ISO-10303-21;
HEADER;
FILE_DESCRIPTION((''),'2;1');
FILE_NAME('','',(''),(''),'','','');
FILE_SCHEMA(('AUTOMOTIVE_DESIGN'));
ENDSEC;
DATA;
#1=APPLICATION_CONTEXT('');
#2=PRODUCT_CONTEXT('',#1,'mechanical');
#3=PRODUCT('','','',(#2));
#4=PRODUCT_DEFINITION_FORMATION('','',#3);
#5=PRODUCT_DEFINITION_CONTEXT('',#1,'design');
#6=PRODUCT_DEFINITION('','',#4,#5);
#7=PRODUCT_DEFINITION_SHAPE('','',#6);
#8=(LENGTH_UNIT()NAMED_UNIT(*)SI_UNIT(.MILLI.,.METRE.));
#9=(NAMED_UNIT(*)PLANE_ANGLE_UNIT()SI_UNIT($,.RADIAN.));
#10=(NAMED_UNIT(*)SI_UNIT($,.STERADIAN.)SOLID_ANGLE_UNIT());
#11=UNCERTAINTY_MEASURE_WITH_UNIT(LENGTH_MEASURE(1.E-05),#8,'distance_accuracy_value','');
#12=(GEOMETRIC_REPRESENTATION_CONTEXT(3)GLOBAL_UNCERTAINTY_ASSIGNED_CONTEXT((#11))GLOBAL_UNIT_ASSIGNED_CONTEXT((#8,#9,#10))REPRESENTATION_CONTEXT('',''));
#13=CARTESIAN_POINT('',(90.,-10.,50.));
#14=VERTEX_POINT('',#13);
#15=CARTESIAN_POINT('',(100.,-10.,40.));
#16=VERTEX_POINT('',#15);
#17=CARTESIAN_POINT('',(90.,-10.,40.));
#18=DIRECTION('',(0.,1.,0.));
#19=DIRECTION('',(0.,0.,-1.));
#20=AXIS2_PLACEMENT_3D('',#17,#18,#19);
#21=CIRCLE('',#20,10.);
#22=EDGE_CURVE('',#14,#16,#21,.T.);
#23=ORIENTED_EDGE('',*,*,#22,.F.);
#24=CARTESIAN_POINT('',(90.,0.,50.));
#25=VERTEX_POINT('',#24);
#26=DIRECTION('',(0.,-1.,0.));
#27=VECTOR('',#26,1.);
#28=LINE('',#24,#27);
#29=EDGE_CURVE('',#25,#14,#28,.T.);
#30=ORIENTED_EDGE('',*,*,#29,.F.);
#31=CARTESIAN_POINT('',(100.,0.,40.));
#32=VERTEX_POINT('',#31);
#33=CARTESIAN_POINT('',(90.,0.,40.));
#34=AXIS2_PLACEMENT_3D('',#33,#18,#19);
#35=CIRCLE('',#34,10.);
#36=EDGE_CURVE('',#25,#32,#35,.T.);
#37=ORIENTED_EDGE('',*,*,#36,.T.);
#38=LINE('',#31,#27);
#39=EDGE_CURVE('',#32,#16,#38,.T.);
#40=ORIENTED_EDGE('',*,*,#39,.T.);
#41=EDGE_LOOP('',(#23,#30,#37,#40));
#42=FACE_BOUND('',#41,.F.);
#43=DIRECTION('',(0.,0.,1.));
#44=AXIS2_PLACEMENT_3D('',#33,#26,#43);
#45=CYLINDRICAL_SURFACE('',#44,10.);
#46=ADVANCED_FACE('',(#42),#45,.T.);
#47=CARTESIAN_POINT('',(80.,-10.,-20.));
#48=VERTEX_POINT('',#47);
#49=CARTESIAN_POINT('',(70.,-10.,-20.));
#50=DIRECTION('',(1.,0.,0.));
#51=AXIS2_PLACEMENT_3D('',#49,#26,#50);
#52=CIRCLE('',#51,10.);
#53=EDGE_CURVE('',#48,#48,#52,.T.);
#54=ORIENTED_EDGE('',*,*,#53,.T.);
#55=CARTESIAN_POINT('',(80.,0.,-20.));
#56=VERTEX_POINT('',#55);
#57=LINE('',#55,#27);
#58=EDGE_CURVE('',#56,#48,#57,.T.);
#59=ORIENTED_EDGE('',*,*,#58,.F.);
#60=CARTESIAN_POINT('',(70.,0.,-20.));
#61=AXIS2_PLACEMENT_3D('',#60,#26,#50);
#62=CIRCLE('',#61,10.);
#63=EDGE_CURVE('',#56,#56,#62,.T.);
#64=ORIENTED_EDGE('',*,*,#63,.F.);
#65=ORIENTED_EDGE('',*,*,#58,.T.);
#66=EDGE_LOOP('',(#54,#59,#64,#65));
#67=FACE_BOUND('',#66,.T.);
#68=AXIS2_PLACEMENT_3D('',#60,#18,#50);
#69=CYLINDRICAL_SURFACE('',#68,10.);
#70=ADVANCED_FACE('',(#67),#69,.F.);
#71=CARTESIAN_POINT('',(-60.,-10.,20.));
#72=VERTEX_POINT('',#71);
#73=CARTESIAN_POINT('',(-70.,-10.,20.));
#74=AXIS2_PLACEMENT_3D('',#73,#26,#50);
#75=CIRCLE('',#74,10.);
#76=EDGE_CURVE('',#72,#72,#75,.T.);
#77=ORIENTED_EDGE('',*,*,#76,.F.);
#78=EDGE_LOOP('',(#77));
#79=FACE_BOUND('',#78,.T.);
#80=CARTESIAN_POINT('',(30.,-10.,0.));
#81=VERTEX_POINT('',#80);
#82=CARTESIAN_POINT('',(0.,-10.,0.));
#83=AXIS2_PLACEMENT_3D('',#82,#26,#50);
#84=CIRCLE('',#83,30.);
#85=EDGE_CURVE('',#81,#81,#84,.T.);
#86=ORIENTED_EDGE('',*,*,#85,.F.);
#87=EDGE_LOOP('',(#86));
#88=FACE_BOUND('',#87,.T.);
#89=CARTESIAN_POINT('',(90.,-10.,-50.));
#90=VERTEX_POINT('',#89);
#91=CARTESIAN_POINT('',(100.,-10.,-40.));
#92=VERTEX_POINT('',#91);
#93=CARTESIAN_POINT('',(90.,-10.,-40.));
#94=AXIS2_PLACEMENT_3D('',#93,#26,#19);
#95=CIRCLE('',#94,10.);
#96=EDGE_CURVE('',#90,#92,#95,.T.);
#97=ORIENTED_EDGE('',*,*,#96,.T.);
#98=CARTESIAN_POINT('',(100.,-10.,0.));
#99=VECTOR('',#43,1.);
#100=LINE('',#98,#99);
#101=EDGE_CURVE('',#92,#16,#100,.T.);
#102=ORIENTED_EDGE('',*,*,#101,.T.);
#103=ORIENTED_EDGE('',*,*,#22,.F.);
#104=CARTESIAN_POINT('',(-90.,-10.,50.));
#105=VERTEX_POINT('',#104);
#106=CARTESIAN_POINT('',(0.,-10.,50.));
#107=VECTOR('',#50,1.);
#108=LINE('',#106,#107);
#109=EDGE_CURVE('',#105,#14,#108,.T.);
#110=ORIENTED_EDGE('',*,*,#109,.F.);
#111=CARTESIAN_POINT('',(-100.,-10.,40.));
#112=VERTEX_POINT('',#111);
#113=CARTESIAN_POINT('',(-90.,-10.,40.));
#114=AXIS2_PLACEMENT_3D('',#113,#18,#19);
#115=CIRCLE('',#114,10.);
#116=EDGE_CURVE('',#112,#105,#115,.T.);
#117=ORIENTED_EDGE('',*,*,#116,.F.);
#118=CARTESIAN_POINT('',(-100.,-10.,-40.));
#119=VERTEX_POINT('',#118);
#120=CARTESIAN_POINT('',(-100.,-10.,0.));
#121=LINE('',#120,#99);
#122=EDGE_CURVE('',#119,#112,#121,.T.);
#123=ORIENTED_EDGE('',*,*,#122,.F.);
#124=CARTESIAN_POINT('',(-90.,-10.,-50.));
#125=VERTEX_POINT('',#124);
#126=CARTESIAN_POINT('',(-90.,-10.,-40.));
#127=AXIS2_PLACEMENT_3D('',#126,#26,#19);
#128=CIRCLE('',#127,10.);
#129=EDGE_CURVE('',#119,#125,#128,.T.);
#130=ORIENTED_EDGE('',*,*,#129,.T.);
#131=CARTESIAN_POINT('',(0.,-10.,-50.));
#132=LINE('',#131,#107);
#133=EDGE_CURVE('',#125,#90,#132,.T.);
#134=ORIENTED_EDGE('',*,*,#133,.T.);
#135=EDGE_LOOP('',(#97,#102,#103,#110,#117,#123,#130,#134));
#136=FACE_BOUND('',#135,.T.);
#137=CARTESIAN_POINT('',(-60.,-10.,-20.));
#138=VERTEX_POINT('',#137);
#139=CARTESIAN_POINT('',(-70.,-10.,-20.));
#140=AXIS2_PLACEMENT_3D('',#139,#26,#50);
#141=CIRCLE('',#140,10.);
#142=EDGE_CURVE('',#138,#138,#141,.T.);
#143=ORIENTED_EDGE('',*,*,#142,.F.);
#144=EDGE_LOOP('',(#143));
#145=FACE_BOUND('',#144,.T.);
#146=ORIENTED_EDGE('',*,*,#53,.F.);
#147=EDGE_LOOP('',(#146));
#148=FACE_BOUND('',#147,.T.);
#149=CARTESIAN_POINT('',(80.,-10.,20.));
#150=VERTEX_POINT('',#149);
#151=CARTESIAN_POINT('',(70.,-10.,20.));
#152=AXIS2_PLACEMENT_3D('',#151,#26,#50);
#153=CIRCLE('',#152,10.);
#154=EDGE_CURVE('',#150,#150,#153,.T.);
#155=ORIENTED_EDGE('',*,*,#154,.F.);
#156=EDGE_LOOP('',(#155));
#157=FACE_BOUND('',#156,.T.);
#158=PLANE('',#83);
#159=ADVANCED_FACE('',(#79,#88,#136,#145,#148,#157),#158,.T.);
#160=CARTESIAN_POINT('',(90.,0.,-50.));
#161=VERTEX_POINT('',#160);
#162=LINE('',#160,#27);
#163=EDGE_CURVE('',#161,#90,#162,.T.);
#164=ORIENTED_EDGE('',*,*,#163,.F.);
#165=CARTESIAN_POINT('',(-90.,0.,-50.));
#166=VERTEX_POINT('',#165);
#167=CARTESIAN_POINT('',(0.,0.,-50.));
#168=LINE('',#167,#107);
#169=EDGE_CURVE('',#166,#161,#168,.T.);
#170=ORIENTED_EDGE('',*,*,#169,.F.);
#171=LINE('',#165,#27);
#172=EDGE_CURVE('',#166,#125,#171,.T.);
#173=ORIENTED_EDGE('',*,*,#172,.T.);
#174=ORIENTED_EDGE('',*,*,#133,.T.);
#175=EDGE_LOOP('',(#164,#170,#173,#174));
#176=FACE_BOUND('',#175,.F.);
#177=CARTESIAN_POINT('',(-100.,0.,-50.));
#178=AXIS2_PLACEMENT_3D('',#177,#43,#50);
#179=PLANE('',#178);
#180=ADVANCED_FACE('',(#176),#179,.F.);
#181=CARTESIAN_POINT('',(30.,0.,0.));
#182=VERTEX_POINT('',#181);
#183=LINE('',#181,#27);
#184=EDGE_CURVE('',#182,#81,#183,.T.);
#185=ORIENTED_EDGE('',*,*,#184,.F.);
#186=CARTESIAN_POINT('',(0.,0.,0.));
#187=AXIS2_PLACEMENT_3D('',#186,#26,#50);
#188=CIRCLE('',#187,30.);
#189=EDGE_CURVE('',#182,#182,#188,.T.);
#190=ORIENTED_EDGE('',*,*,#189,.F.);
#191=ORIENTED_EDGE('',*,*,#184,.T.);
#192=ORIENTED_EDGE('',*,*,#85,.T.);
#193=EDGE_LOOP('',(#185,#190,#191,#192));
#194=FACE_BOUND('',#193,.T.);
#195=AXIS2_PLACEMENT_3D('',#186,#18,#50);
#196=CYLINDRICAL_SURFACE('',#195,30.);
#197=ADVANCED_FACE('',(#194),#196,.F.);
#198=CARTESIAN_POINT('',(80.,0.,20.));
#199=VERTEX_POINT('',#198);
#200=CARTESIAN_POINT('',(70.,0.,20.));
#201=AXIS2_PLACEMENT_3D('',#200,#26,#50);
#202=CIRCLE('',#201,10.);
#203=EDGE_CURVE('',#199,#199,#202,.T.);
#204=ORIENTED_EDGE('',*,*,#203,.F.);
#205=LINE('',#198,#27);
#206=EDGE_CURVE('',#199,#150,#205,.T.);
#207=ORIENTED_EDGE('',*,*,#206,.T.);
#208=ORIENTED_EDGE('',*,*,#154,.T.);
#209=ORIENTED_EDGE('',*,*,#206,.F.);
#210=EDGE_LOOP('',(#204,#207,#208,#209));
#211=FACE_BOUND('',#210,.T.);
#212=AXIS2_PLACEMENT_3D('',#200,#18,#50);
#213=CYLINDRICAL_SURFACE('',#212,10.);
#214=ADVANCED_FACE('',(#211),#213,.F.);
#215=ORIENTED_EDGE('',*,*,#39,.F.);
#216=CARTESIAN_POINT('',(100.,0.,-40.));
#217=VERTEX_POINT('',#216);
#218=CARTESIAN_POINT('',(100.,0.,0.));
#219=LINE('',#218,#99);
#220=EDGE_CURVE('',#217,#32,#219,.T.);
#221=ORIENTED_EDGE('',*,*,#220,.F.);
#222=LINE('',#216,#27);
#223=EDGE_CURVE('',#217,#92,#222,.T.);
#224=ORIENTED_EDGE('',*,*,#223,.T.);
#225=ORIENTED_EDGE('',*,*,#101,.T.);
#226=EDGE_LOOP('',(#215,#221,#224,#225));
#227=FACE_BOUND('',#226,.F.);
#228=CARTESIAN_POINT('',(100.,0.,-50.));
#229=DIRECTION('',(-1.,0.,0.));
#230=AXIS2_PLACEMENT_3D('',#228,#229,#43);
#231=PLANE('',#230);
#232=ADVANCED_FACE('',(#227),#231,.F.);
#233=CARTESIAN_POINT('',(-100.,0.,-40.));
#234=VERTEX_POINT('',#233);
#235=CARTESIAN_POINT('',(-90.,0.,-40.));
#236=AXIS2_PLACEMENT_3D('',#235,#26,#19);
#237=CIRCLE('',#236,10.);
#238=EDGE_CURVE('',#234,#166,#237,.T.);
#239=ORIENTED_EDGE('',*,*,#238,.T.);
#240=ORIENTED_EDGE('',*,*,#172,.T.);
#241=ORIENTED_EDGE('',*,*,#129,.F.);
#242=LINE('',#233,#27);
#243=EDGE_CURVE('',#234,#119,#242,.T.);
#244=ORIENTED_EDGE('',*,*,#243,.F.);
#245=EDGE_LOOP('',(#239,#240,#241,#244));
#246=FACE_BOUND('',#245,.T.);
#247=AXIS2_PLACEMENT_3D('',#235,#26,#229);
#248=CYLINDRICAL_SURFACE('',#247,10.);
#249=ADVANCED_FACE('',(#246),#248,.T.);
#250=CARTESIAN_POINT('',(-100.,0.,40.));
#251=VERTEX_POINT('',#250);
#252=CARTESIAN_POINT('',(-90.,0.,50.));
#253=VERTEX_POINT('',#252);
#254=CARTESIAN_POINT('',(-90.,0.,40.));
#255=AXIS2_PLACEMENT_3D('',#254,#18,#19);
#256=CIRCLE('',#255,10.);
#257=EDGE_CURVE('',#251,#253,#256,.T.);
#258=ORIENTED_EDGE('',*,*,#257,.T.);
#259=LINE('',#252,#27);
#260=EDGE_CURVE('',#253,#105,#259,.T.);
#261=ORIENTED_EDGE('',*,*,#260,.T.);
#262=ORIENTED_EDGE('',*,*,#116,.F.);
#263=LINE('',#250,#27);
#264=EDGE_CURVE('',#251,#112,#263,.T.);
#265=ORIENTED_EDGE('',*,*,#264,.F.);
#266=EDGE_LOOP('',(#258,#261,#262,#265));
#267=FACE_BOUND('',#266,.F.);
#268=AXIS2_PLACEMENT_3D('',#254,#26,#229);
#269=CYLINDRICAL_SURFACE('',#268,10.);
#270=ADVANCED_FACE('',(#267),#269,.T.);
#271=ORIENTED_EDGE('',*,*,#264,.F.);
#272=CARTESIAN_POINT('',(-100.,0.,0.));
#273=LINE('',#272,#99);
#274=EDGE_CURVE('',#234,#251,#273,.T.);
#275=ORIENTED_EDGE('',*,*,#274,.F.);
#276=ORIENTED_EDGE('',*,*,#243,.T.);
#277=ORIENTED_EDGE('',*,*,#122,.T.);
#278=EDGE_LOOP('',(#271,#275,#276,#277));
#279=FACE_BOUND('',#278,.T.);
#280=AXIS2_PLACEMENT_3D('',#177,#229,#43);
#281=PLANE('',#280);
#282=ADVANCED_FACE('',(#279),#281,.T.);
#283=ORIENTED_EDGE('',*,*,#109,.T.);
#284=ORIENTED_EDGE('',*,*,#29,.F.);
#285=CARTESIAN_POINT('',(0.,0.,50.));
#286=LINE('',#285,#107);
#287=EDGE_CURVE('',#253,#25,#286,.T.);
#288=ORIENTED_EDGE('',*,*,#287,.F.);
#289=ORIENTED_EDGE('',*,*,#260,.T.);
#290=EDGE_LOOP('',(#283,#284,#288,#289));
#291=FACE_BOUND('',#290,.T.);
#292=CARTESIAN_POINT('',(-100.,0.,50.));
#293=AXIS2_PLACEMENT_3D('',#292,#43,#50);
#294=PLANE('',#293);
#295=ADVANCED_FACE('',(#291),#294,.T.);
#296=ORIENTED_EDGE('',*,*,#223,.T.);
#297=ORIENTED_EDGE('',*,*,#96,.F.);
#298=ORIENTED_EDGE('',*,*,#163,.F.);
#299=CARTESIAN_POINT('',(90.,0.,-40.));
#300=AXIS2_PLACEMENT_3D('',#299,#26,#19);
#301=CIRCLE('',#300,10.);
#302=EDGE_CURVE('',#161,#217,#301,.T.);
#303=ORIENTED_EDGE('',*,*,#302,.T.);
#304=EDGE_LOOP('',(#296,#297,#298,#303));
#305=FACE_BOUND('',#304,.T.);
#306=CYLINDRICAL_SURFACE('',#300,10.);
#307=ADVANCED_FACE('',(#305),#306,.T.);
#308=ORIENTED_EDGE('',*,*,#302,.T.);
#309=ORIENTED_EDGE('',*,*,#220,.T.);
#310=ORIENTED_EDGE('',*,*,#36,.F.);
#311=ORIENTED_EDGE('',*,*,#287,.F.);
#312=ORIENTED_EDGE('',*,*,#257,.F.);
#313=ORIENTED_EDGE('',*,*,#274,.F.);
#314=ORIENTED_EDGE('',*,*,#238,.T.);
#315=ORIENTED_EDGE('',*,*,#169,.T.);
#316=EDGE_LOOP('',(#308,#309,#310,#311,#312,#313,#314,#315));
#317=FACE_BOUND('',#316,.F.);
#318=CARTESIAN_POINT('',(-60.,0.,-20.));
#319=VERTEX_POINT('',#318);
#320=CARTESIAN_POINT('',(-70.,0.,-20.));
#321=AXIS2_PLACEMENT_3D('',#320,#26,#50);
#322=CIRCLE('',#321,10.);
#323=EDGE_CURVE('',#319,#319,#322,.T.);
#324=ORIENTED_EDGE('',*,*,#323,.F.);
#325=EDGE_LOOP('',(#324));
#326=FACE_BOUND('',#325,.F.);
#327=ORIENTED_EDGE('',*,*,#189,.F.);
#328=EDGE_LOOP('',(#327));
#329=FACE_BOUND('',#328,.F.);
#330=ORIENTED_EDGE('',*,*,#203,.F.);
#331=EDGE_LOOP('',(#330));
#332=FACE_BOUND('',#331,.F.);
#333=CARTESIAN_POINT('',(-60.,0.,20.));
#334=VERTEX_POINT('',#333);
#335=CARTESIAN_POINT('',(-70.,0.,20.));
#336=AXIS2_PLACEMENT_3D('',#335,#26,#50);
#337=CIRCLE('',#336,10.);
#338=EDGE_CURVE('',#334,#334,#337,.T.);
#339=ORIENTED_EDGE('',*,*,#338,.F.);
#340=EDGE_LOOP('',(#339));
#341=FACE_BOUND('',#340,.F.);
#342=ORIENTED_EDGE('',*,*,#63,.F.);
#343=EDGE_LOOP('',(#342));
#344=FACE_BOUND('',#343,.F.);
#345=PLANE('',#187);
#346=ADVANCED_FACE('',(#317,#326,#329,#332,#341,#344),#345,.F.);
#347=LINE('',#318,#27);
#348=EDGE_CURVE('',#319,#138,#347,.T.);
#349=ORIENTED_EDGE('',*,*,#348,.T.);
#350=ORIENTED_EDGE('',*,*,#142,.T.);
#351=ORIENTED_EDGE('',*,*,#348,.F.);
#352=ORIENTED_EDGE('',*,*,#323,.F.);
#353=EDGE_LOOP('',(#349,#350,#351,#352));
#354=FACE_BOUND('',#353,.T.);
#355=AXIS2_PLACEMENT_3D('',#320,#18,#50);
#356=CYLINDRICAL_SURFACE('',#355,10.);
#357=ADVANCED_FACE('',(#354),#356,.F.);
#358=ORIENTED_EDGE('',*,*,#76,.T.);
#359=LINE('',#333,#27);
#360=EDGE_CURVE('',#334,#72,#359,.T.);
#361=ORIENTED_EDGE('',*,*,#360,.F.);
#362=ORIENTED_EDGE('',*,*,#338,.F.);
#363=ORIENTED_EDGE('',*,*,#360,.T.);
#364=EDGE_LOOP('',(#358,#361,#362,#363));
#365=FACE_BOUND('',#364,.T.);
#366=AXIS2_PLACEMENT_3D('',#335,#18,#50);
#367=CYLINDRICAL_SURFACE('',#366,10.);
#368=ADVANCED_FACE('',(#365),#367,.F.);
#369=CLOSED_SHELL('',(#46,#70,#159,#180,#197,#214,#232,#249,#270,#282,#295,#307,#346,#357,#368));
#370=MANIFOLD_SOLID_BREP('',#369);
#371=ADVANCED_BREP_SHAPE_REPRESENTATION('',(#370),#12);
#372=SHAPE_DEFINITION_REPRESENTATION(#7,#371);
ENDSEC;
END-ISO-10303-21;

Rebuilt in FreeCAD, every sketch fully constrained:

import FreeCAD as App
import Part
import Sketcher
from FreeCAD import Vector


def edges_at(feature, points):
    """Names of the edges that pass closest to the given points."""
    edges = feature.Shape.Edges
    near = lambda p: min(range(len(edges)), key=lambda i: edges[i].distToShape(Part.Vertex(*p))[0])
    return sorted({f"Edge{near(p) + 1}" for p in points})

doc = App.newDocument("Part")
body = doc.addObject("PartDesign::Body", "Body")

sketch1 = doc.addObject("Sketcher::SketchObject", "Sketch")
body.addObject(sketch1)
sketch1.AttachmentSupport = (doc.XZ_Plane, [""])
sketch1.MapMode = "FlatFace"
sketch1.addGeometry([
    Part.LineSegment(Vector(-100, 50, 0), Vector(-100, -50, 0)),
    Part.LineSegment(Vector(-100, -50, 0), Vector(100, -50, 0)),
    Part.LineSegment(Vector(100, -50, 0), Vector(100, 50, 0)),
    Part.LineSegment(Vector(100, 50, 0), Vector(-100, 50, 0)),
    Part.Circle(Vector(-70, -20, 0), Vector(0, 0, 1), 10),
    Part.Circle(Vector(70, -20, 0), Vector(0, 0, 1), 10),
    Part.Circle(Vector(-70, 20, 0), Vector(0, 0, 1), 10),
    Part.Circle(Vector(0, 0, 0), Vector(0, 0, 1), 30),
    Part.Circle(Vector(70, 20, 0), Vector(0, 0, 1), 10),
], False)
sketch1.addConstraint([
    Sketcher.Constraint("Coincident", 0, 2, 1, 1),
    Sketcher.Constraint("Coincident", 1, 2, 2, 1),
    Sketcher.Constraint("Coincident", 2, 2, 3, 1),
    Sketcher.Constraint("Coincident", 3, 2, 0, 1),
    Sketcher.Constraint("Vertical", 0),
    Sketcher.Constraint("Horizontal", 1),
    Sketcher.Constraint("Vertical", 2),
    Sketcher.Constraint("Horizontal", 3),
    Sketcher.Constraint("Coincident", 7, 3, -1, 1),
    Sketcher.Constraint("Equal", 4, 5),
    Sketcher.Constraint("Equal", 5, 6),
    Sketcher.Constraint("Equal", 6, 8),
    Sketcher.Constraint("Symmetric", 5, 3, 6, 3, -1, 1),
    Sketcher.Constraint("Symmetric", 4, 3, 8, 3, -1, 1),
    Sketcher.Constraint("Symmetric", 0, 2, 2, 2, -1, 1),
    Sketcher.Constraint("Symmetric", 4, 3, 5, 3, -2),
    Sketcher.Constraint("Diameter", 4, 20.0),
    Sketcher.Constraint("Diameter", 7, 60.0),
    Sketcher.Constraint("DistanceX", 1, 1, 1, 2, 200.0),
    Sketcher.Constraint("DistanceY", 0, 2, 0, 1, 100.0),
    Sketcher.Constraint("DistanceX", 4, 3, -1, 1, 70.0),
    Sketcher.Constraint("DistanceY", 4, 3, -1, 1, 20.0),
])
pad1 = doc.addObject("PartDesign::Pad", "Pad")
body.addObject(pad1)
pad1.Profile = sketch1
pad1.Length = 10
doc.recompute()

fillet = doc.addObject("PartDesign::Fillet", "Fillet")
body.addObject(fillet)
fillet.Base = (pad1, edges_at(pad1, [(100, -5, -50), (100, -5, 50), (-100, -5, 50)]))
fillet.Radius = 10
doc.recompute()

fillet2 = doc.addObject("PartDesign::Fillet", "Fillet001")
body.addObject(fillet2)
fillet2.Base = (fillet, edges_at(fillet, [(-100, -5, -50)]))
fillet2.Radius = 10

doc.recompute()
